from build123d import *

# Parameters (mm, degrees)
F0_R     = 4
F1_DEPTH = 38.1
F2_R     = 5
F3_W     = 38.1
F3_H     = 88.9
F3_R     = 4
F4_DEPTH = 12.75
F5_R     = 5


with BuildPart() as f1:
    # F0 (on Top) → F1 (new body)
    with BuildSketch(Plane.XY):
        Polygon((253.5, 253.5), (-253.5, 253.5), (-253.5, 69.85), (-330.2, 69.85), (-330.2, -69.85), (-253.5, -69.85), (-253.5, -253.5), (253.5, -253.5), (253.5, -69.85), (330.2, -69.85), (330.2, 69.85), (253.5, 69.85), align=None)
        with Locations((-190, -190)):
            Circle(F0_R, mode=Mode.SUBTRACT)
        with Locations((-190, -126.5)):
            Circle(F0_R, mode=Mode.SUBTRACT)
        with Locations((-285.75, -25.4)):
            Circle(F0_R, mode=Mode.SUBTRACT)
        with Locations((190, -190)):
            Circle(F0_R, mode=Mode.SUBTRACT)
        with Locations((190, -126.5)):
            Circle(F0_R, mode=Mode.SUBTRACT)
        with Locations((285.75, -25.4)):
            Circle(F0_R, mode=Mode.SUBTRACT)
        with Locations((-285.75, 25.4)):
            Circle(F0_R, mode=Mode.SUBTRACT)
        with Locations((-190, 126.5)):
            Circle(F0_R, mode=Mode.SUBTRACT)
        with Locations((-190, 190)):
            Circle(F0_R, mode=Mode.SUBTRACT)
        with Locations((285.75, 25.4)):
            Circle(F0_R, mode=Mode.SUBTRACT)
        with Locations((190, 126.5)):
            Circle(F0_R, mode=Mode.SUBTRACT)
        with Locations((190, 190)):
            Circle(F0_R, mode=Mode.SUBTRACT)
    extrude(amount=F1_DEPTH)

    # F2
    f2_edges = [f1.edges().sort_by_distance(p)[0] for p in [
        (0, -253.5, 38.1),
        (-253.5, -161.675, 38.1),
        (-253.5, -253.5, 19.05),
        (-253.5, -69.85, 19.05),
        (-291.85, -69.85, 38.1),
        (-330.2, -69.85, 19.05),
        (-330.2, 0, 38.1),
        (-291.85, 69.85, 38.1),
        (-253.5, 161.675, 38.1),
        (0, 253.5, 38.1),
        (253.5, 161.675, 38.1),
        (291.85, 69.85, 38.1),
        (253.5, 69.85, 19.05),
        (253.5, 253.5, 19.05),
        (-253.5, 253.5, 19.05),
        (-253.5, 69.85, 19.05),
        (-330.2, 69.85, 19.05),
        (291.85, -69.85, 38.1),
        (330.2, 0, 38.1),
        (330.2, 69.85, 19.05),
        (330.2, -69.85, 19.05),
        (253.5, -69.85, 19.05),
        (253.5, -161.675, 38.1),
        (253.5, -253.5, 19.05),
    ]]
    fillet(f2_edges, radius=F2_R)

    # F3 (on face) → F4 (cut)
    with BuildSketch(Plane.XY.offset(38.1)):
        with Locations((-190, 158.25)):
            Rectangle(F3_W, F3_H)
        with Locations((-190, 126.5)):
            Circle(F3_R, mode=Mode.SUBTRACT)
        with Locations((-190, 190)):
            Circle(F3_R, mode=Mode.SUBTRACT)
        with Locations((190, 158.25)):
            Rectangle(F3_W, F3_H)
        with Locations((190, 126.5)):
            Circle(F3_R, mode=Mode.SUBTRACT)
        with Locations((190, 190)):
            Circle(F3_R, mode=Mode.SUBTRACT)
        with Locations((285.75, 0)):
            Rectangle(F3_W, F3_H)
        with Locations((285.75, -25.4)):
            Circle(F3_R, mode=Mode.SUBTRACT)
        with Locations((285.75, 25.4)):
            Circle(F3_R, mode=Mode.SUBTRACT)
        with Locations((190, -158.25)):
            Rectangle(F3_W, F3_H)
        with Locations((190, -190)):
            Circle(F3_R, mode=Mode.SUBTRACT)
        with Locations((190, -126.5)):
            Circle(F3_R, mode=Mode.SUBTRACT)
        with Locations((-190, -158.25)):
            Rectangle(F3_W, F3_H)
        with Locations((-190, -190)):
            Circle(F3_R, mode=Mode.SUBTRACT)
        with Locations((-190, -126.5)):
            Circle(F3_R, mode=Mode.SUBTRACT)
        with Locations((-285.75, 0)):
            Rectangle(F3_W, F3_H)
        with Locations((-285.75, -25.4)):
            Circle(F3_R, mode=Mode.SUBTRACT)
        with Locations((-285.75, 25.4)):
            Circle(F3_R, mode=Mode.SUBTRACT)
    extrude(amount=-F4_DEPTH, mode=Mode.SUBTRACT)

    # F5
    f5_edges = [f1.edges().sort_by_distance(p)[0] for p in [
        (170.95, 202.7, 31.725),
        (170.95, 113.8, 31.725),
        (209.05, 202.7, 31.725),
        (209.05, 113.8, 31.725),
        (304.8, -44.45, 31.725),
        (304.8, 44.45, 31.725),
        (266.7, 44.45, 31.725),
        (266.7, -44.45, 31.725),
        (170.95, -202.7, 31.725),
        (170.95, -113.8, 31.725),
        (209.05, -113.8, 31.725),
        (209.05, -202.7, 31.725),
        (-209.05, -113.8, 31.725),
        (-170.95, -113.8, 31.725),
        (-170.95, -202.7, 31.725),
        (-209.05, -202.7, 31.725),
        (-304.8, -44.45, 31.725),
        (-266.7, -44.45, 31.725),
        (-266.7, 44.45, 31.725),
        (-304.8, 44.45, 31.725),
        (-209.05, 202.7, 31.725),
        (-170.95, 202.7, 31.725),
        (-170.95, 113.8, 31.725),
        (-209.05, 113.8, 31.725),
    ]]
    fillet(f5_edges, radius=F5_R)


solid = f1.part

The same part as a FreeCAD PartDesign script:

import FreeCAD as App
import Part
import Sketcher


def edges_at(feature, points):
    """Names of the edges that pass closest to the given points."""
    edges = feature.Shape.Edges
    near = lambda p: min(range(len(edges)), key=lambda i: edges[i].distToShape(Part.Vertex(*p))[0])
    return sorted({f"Edge{near(p) + 1}" for p in points})


def add_polygon(sketch, points):
    """Adds a closed chain of lines whose ends are joined by coincident constraints."""
    first, n = sketch.GeometryCount, len(points)
    for a, b in zip(points, points[1:] + points[:1]):
        sketch.addGeometry(Part.LineSegment(App.Vector(*a, 0), App.Vector(*b, 0)), False)
    for i in range(n):
        sketch.addConstraint(Sketcher.Constraint("Coincident", first + i, 2, first + (i + 1) % n, 1))

doc = App.newDocument("Part")
body = doc.addObject("PartDesign::Body", "Body")

# Sketch on XY plane
sketch1 = body.newObject("Sketcher::SketchObject", "Sketch")
sketch1.AttachmentSupport = (doc.getObject("XY_Plane"), [""])
sketch1.MapMode = "FlatFace"
add_polygon(sketch1, [(253.5, 253.5), (-253.5, 253.5), (-253.5, 69.85), (-330.2, 69.85), (-330.2, -69.85), (-253.5, -69.85), (-253.5, -253.5), (253.5, -253.5), (253.5, -69.85), (330.2, -69.85), (330.2, 69.85), (253.5, 69.85)])  # lines 0-11
sketch1.addGeometry(Part.Circle(App.Vector(-190, -190, 0), App.Vector(0, 0, 1), 4), False)  # 12
sketch1.addGeometry(Part.Circle(App.Vector(-190, -126.5, 0), App.Vector(0, 0, 1), 4), False)  # 13
sketch1.addGeometry(Part.Circle(App.Vector(-285.75, -25.4, 0), App.Vector(0, 0, 1), 4), False)  # 14
sketch1.addGeometry(Part.Circle(App.Vector(190, -190, 0), App.Vector(0, 0, 1), 4), False)  # 15
sketch1.addGeometry(Part.Circle(App.Vector(190, -126.5, 0), App.Vector(0, 0, 1), 4), False)  # 16
sketch1.addGeometry(Part.Circle(App.Vector(285.75, -25.4, 0), App.Vector(0, 0, 1), 4), False)  # 17
sketch1.addGeometry(Part.Circle(App.Vector(-285.75, 25.4, 0), App.Vector(0, 0, 1), 4), False)  # 18
sketch1.addGeometry(Part.Circle(App.Vector(-190, 126.5, 0), App.Vector(0, 0, 1), 4), False)  # 19
sketch1.addGeometry(Part.Circle(App.Vector(-190, 190, 0), App.Vector(0, 0, 1), 4), False)  # 20
sketch1.addGeometry(Part.Circle(App.Vector(285.75, 25.4, 0), App.Vector(0, 0, 1), 4), False)  # 21
sketch1.addGeometry(Part.Circle(App.Vector(190, 126.5, 0), App.Vector(0, 0, 1), 4), False)  # 22
sketch1.addGeometry(Part.Circle(App.Vector(190, 190, 0), App.Vector(0, 0, 1), 4), False)  # 23
sketch1.addConstraint([
    Sketcher.Constraint("Horizontal", 0),
    Sketcher.Constraint("Vertical", 1),
    Sketcher.Constraint("Horizontal", 2),
    Sketcher.Constraint("Vertical", 3),
    Sketcher.Constraint("Horizontal", 4),
    Sketcher.Constraint("Vertical", 5),
    Sketcher.Constraint("Horizontal", 6),
    Sketcher.Constraint("Vertical", 7),
    Sketcher.Constraint("Horizontal", 8),
    Sketcher.Constraint("Vertical", 9),
    Sketcher.Constraint("Horizontal", 10),
    Sketcher.Constraint("Vertical", 11),
    Sketcher.Constraint("Equal", 12, 13),
    Sketcher.Constraint("Equal", 13, 14),
    Sketcher.Constraint("Equal", 14, 15),
    Sketcher.Constraint("Equal", 15, 16),
    Sketcher.Constraint("Equal", 16, 17),
    Sketcher.Constraint("Equal", 17, 18),
    Sketcher.Constraint("Equal", 18, 19),
    Sketcher.Constraint("Equal", 19, 20),
    Sketcher.Constraint("Equal", 20, 21),
    Sketcher.Constraint("Equal", 21, 22),
    Sketcher.Constraint("Equal", 22, 23),
    Sketcher.Constraint("Symmetric", 17, 3, 18, 3, -1, 1),
    Sketcher.Constraint("Symmetric", 16, 3, 19, 3, -1, 1),
    Sketcher.Constraint("Symmetric", 15, 3, 20, 3, -1, 1),
    Sketcher.Constraint("Symmetric", 14, 3, 21, 3, -1, 1),
    Sketcher.Constraint("Symmetric", 13, 3, 22, 3, -1, 1),
    Sketcher.Constraint("Symmetric", 12, 3, 23, 3, -1, 1),
    Sketcher.Constraint("Symmetric", 0, 2, 6, 2, -1, 1),
    Sketcher.Constraint("Symmetric", 2, 2, 8, 2, -1, 1),
    Sketcher.Constraint("Symmetric", 4, 2, 10, 2, -1, 1),
    Sketcher.Constraint("Symmetric", 12, 3, 15, 3, -2),
    Sketcher.Constraint("Symmetric", 13, 3, 16, 3, -2),
    Sketcher.Constraint("Symmetric", 14, 3, 17, 3, -2),
    Sketcher.Constraint("Symmetric", 4, 2, 7, 2, -2),
    Sketcher.Constraint("Vertical", 12, 3, 13, 3),
    Sketcher.Constraint("Diameter", 12, 8.0),
    Sketcher.Constraint("DistanceX", 0, 2, 0, 1, 507.0),
    Sketcher.Constraint("DistanceX", 2, 2, 2, 1, 76.7),
    Sketcher.Constraint("DistanceY", 3, 2, 3, 1, 139.7),
    Sketcher.Constraint("DistanceX", 12, 3, -1, 1, 190.0),
    Sketcher.Constraint("DistanceY", 12, 3, -1, 1, 190.0),
    Sketcher.Constraint("DistanceY", 13, 3, 19, 3, 253.0),
    Sketcher.Constraint("DistanceY", 19, 3, 0, 2, 127.0),
    Sketcher.Constraint("DistanceY", 14, 3, -1, 1, 25.4),
    Sketcher.Constraint("DistanceX", 14, 3, 17, 3, 571.5),
])
pad1 = body.newObject("PartDesign::Pad", "Pad")
pad1.Profile = sketch1
pad1.Length = 38.1
doc.recompute()

fillet = body.newObject("PartDesign::Fillet", "Fillet")
fillet.Base = (pad1, edges_at(pad1, [
    (0, -253.5, 38.1),
    (-253.5, -161.675, 38.1),
    (-253.5, -253.5, 19.05),
    (-253.5, -69.85, 19.05),
    (-291.85, -69.85, 38.1),
    (-330.2, -69.85, 19.05),
    (-330.2, 0, 38.1),
    (-291.85, 69.85, 38.1),
    (-253.5, 161.675, 38.1),
    (0, 253.5, 38.1),
    (253.5, 161.675, 38.1),
    (291.85, 69.85, 38.1),
    (253.5, 69.85, 19.05),
    (253.5, 253.5, 19.05),
    (-253.5, 253.5, 19.05),
    (-253.5, 69.85, 19.05),
    (-330.2, 69.85, 19.05),
    (291.85, -69.85, 38.1),
    (330.2, 0, 38.1),
    (330.2, 69.85, 19.05),
    (330.2, -69.85, 19.05),
    (253.5, -69.85, 19.05),
    (253.5, -161.675, 38.1),
    (253.5, -253.5, 19.05),
]))
fillet.Radius = 5

# Sketch on XY plane
sketch2 = body.newObject("Sketcher::SketchObject", "Sketch001")
sketch2.AttachmentSupport = (doc.getObject("XY_Plane"), [""])
sketch2.MapMode = "FlatFace"
sketch2.AttachmentOffset = App.Placement(App.Vector(0, 0, 38.1), App.Rotation())
add_polygon(sketch2, [(-209.05, 202.7), (-209.05, 113.8), (-170.95, 113.8), (-170.95, 202.7)])  # lines 0-3
sketch2.addGeometry(Part.Circle(App.Vector(-190, 126.5, 0), App.Vector(0, 0, 1), 4), False)  # 4
sketch2.addGeometry(Part.Circle(App.Vector(-190, 190, 0), App.Vector(0, 0, 1), 4), False)  # 5
add_polygon(sketch2, [(170.95, 202.7), (170.95, 113.8), (209.05, 113.8), (209.05, 202.7)])  # lines 6-9
sketch2.addGeometry(Part.Circle(App.Vector(190, 126.5, 0), App.Vector(0, 0, 1), 4), False)  # 10
sketch2.addGeometry(Part.Circle(App.Vector(190, 190, 0), App.Vector(0, 0, 1), 4), False)  # 11
add_polygon(sketch2, [(266.7, 44.45), (266.7, -44.45), (304.8, -44.45), (304.8, 44.45)])  # lines 12-15
sketch2.addGeometry(Part.Circle(App.Vector(285.75, -25.4, 0), App.Vector(0, 0, 1), 4), False)  # 16
sketch2.addGeometry(Part.Circle(App.Vector(285.75, 25.4, 0), App.Vector(0, 0, 1), 4), False)  # 17
add_polygon(sketch2, [(170.95, -113.8), (170.95, -202.7), (209.05, -202.7), (209.05, -113.8)])  # lines 18-21
sketch2.addGeometry(Part.Circle(App.Vector(190, -190, 0), App.Vector(0, 0, 1), 4), False)  # 22
sketch2.addGeometry(Part.Circle(App.Vector(190, -126.5, 0), App.Vector(0, 0, 1), 4), False)  # 23
add_polygon(sketch2, [(-209.05, -113.8), (-209.05, -202.7), (-170.95, -202.7), (-170.95, -113.8)])  # lines 24-27
sketch2.addGeometry(Part.Circle(App.Vector(-190, -190, 0), App.Vector(0, 0, 1), 4), False)  # 28
sketch2.addGeometry(Part.Circle(App.Vector(-190, -126.5, 0), App.Vector(0, 0, 1), 4), False)  # 29
add_polygon(sketch2, [(-304.8, 44.45), (-304.8, -44.45), (-266.7, -44.45), (-266.7, 44.45)])  # lines 30-33
sketch2.addGeometry(Part.Circle(App.Vector(-285.75, -25.4, 0), App.Vector(0, 0, 1), 4), False)  # 34
sketch2.addGeometry(Part.Circle(App.Vector(-285.75, 25.4, 0), App.Vector(0, 0, 1), 4), False)  # 35
sketch2.addConstraint([
    Sketcher.Constraint("Vertical", 0),
    Sketcher.Constraint("Horizontal", 1),
    Sketcher.Constraint("Vertical", 2),
    Sketcher.Constraint("Horizontal", 3),
    Sketcher.Constraint("Vertical", 6),
    Sketcher.Constraint("Horizontal", 7),
    Sketcher.Constraint("Vertical", 8),
    Sketcher.Constraint("Horizontal", 9),
    Sketcher.Constraint("Vertical", 12),
    Sketcher.Constraint("Horizontal", 13),
    Sketcher.Constraint("Vertical", 14),
    Sketcher.Constraint("Horizontal", 15),
    Sketcher.Constraint("Vertical", 18),
    Sketcher.Constraint("Horizontal", 19),
    Sketcher.Constraint("Vertical", 20),
    Sketcher.Constraint("Horizontal", 21),
    Sketcher.Constraint("Vertical", 24),
    Sketcher.Constraint("Horizontal", 25),
    Sketcher.Constraint("Vertical", 26),
    Sketcher.Constraint("Horizontal", 27),
    Sketcher.Constraint("Vertical", 30),
    Sketcher.Constraint("Horizontal", 31),
    Sketcher.Constraint("Vertical", 32),
    Sketcher.Constraint("Horizontal", 33),
    Sketcher.Constraint("Equal", 4, 5),
    Sketcher.Constraint("Equal", 5, 10),
    Sketcher.Constraint("Equal", 10, 11),
    Sketcher.Constraint("Equal", 11, 16),
    Sketcher.Constraint("Equal", 16, 17),
    Sketcher.Constraint("Equal", 17, 22),
    Sketcher.Constraint("Equal", 22, 23),
    Sketcher.Constraint("Equal", 23, 28),
    Sketcher.Constraint("Equal", 28, 29),
    Sketcher.Constraint("Equal", 29, 34),
    Sketcher.Constraint("Equal", 34, 35),
    Sketcher.Constraint("Symmetric", 5, 3, 22, 3, -1, 1),
    Sketcher.Constraint("Symmetric", 4, 3, 23, 3, -1, 1),
    Sketcher.Constraint("Symmetric", 11, 3, 28, 3, -1, 1),
    Sketcher.Constraint("Symmetric", 10, 3, 29, 3, -1, 1),
    Sketcher.Constraint("Symmetric", 17, 3, 34, 3, -1, 1),
    Sketcher.Constraint("Symmetric", 16, 3, 35, 3, -1, 1),
    Sketcher.Constraint("Symmetric", 2, 2, 18, 2, -1, 1),
    Sketcher.Constraint("Symmetric", 0, 2, 20, 2, -1, 1),
    Sketcher.Constraint("Symmetric", 8, 2, 24, 2, -1, 1),
    Sketcher.Constraint("Symmetric", 6, 2, 26, 2, -1, 1),
    Sketcher.Constraint("Symmetric", 14, 2, 30, 2, -1, 1),
    Sketcher.Constraint("Symmetric", 12, 2, 32, 2, -1, 1),
    Sketcher.Constraint("Symmetric", 4, 3, 10, 3, -2),
    Sketcher.Constraint("Symmetric", 5, 3, 11, 3, -2),
    Sketcher.Constraint("Symmetric", 16, 3, 34, 3, -2),
    Sketcher.Constraint("Symmetric", 1, 2, 6, 2, -2),
    Sketcher.Constraint("Symmetric", 3, 2, 8, 2, -2),
    Sketcher.Constraint("Horizontal", 13, 2, 30, 2),
    Sketcher.Constraint("Vertical", 4, 3, 5, 3),
    Sketcher.Constraint("Equal", 9, 13),
    Sketcher.Constraint("Equal", 8, 12),
    Sketcher.Constraint("Diameter", 4, 8.0),
    Sketcher.Constraint("DistanceX", 1, 1, 1, 2, 38.1),
    Sketcher.Constraint("DistanceY", 0, 2, 0, 1, 88.9),
    Sketcher.Constraint("DistanceX", 4, 3, -1, 1, 190.0),
    Sketcher.Constraint("DistanceY", -1, 1, 5, 3, 190.0),
    Sketcher.Constraint("DistanceY", 23, 3, 10, 3, 253.0),
    Sketcher.Constraint("DistanceY", 16, 3, -1, 1, 25.4),
    Sketcher.Constraint("DistanceY", -1, 1, 0, 2, 113.8),
    Sketcher.Constraint("DistanceX", -1, 1, 12, 2, 266.7),
    Sketcher.Constraint("DistanceX", 35, 3, 0, 2, 76.7),
    Sketcher.Constraint("DistanceX", -1, 1, 16, 3, 285.75),
])
pocket1 = body.newObject("PartDesign::Pocket", "Pocket")
pocket1.Profile = sketch2
pocket1.Length = 12.75
doc.recompute()

fillet2 = body.newObject("PartDesign::Fillet", "Fillet001")
fillet2.Base = (pocket1, edges_at(pocket1, [
    (170.95, 202.7, 31.725),
    (170.95, 113.8, 31.725),
    (209.05, 202.7, 31.725),
    (209.05, 113.8, 31.725),
    (304.8, -44.45, 31.725),
    (304.8, 44.45, 31.725),
    (266.7, 44.45, 31.725),
    (266.7, -44.45, 31.725),
    (170.95, -202.7, 31.725),
    (170.95, -113.8, 31.725),
    (209.05, -113.8, 31.725),
    (209.05, -202.7, 31.725),
    (-209.05, -113.8, 31.725),
    (-170.95, -113.8, 31.725),
    (-170.95, -202.7, 31.725),
    (-209.05, -202.7, 31.725),
    (-304.8, -44.45, 31.725),
    (-266.7, -44.45, 31.725),
    (-266.7, 44.45, 31.725),
    (-304.8, 44.45, 31.725),
    (-209.05, 202.7, 31.725),
    (-170.95, 202.7, 31.725),
    (-170.95, 113.8, 31.725),
    (-209.05, 113.8, 31.725),
]))
fillet2.Radius = 5

doc.recompute()
